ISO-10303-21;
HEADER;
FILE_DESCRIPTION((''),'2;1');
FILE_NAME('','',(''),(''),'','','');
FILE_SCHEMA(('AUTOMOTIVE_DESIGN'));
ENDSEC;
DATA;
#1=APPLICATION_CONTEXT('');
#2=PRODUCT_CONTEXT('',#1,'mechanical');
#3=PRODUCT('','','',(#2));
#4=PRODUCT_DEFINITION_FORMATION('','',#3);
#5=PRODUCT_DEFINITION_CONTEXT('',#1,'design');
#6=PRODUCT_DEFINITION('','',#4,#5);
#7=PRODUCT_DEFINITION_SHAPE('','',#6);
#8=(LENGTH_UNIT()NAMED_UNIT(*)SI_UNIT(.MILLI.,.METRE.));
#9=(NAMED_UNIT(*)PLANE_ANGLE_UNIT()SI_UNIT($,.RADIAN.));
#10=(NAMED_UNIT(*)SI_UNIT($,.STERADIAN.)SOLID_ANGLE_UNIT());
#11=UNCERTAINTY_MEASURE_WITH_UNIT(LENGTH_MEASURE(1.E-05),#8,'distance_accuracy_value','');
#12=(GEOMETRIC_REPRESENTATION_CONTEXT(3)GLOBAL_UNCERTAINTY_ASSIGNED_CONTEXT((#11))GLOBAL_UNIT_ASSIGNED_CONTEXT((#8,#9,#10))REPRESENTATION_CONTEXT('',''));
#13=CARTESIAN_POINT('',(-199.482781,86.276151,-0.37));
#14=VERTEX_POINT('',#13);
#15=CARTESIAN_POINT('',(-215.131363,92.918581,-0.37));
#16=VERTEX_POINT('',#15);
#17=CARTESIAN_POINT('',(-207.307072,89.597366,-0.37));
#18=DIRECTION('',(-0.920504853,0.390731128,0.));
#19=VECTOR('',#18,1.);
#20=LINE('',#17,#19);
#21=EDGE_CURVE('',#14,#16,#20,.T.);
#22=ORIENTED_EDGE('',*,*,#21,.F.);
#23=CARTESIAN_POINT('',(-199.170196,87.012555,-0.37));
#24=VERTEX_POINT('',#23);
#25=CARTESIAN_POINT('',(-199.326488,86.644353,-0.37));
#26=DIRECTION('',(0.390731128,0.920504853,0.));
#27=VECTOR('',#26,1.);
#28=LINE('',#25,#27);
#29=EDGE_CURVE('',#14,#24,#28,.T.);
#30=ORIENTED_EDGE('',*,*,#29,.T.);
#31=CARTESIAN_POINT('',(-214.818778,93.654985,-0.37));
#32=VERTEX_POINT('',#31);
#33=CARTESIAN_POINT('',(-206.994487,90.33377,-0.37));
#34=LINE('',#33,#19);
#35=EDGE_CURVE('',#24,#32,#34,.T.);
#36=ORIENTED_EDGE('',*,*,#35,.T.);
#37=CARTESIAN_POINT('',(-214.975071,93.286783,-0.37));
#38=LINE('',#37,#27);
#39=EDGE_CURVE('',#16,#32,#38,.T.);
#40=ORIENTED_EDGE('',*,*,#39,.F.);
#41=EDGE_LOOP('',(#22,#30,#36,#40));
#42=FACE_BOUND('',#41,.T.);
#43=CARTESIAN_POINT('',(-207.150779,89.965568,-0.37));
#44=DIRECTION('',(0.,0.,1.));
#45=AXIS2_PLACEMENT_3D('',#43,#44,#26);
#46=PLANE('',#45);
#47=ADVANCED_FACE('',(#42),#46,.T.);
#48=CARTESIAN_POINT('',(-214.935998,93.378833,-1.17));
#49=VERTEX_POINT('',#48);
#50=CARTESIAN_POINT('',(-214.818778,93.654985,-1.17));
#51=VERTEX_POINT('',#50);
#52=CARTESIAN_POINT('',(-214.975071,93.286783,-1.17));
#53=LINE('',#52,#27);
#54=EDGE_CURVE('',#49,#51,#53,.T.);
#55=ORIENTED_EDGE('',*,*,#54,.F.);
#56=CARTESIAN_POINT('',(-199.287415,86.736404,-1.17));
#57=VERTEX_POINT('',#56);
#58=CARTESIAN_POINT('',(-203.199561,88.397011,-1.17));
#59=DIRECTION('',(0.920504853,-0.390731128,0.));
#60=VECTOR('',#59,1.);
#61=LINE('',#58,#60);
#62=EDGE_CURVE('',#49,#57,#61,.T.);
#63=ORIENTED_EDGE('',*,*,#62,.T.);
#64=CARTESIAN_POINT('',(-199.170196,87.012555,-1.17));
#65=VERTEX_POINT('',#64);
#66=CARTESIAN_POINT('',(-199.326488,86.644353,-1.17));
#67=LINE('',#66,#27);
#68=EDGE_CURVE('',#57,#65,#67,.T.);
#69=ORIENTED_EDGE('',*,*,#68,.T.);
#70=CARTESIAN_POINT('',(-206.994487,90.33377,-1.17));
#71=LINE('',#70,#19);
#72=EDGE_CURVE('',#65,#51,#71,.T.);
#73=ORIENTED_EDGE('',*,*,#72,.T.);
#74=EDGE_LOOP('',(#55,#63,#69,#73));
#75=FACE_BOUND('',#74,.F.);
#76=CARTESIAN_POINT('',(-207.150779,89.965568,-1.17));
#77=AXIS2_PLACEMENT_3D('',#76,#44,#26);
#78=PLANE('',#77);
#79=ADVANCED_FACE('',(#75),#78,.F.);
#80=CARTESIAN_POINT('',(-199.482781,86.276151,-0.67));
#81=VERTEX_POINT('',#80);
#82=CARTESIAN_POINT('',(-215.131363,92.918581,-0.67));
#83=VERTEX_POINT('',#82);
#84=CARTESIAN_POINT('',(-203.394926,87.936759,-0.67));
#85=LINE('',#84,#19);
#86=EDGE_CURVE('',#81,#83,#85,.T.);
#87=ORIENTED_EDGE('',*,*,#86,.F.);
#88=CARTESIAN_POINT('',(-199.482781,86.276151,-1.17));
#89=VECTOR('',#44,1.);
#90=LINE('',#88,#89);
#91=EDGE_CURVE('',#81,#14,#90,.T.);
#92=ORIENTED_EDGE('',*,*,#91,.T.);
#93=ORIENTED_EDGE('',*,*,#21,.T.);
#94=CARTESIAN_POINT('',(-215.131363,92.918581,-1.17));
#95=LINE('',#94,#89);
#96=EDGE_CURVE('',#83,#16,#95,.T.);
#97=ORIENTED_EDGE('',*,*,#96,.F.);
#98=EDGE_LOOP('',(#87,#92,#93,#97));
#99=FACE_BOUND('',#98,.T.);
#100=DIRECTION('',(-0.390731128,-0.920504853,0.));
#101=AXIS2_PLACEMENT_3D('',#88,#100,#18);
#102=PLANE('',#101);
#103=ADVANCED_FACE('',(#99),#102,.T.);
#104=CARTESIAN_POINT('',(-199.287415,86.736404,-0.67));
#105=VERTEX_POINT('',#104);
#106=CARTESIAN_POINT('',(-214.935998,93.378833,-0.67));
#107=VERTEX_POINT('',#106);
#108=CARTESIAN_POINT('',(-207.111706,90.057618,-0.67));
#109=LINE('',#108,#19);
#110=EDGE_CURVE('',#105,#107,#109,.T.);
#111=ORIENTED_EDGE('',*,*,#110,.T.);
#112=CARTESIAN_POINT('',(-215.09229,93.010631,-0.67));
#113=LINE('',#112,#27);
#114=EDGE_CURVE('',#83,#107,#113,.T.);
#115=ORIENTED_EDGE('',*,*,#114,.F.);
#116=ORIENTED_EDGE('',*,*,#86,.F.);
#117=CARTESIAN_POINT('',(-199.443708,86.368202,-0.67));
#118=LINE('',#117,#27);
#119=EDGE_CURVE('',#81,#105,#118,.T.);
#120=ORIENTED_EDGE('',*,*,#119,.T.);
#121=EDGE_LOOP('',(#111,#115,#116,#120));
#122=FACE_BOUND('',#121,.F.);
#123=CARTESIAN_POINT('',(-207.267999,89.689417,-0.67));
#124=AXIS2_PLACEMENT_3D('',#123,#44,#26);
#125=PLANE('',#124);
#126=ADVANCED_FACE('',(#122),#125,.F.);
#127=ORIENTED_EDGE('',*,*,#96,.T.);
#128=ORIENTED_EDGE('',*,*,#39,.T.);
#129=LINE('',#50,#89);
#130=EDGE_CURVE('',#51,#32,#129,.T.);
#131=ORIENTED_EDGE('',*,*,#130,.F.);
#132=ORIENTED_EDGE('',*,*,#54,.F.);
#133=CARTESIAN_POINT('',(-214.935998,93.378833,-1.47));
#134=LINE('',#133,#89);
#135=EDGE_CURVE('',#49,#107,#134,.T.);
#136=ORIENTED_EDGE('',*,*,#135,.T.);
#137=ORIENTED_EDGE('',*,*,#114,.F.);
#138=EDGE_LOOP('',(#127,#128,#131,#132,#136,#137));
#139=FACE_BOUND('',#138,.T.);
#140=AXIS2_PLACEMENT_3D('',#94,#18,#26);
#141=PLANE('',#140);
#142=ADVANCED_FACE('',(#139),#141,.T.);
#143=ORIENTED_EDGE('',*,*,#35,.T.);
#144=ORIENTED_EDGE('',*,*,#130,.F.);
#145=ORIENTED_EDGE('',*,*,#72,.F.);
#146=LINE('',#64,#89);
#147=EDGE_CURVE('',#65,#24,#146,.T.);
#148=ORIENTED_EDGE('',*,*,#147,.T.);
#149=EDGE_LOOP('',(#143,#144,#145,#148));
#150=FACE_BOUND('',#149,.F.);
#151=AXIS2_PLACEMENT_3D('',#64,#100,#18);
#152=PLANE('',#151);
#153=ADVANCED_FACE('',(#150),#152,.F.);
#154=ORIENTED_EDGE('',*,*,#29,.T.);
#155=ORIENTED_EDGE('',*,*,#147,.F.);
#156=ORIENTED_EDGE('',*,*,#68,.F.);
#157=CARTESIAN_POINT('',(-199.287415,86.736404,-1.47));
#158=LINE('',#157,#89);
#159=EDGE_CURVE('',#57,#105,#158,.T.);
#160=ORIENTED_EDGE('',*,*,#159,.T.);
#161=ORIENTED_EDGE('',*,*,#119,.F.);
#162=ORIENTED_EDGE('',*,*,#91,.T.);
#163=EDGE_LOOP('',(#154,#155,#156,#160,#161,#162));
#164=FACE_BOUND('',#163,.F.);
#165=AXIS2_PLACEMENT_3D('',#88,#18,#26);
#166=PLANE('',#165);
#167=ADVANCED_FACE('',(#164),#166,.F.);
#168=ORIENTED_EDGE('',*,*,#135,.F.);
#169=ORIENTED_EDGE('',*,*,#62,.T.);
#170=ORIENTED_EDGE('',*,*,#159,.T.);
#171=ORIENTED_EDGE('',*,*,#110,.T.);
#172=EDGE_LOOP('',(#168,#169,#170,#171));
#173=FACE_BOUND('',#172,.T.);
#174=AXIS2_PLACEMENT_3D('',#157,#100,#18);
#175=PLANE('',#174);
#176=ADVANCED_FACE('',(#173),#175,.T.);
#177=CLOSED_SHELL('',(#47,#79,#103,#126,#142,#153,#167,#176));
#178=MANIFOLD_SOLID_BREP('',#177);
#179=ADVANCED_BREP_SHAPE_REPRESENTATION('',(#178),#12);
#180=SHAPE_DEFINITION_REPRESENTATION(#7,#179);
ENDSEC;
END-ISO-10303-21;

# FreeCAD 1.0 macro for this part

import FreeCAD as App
import Part
import Sketcher
Q = App.Units.Quantity

doc = App.newDocument("Part")
params = doc.addObject("Spreadsheet::Sheet", "Params")
for row, (alias, value) in enumerate([
    ("sketch1_height", "17 mm"),
    ("sketch1_width", "0.8 mm"),
    ("pad1_length", "0.8 mm"),
    ("sketch2_height", "17 mm"),
    ("sketch2_width", "0.8 mm"),
    ("pad2_length", "0.8 mm"),
], start=1):
    params.set(f"A{row}", alias)
    params.set(f"B{row}", "=" + value)
    params.setAlias(f"B{row}", alias)

body = doc.addObject("PartDesign::Body", "Body")

# Sketch on XY plane
sketch1 = body.newObject("Sketcher::SketchObject", "Sketch")
sketch1.AttachmentSupport = (doc.getObject("XY_Plane"), [""])
sketch1.MapMode = "FlatFace"
sketch1.addGeometry(Part.LineSegment(App.Vector(0, 17, 0), App.Vector(0, 0, 0)), False)
sketch1.addGeometry(Part.LineSegment(App.Vector(0, 0, 0), App.Vector(0.8, 0, 0)), False)
sketch1.addGeometry(Part.LineSegment(App.Vector(0.8, 0, 0), App.Vector(0.8, 17, 0)), False)
sketch1.addGeometry(Part.LineSegment(App.Vector(0.8, 17, 0), App.Vector(0, 17, 0)), False)
sketch1.addConstraint(Sketcher.Constraint("Coincident", 0, 2, 1, 1))
sketch1.addConstraint(Sketcher.Constraint("Coincident", 1, 2, 2, 1))
sketch1.addConstraint(Sketcher.Constraint("Coincident", 2, 2, 3, 1))
sketch1.addConstraint(Sketcher.Constraint("Coincident", 3, 2, 0, 1))
sketch1.addConstraint(Sketcher.Constraint("Vertical", 0))
sketch1.addConstraint(Sketcher.Constraint("Horizontal", 1))
sketch1.addConstraint(Sketcher.Constraint("Vertical", 2))
sketch1.addConstraint(Sketcher.Constraint("Horizontal", 3))
sketch1.addConstraint(Sketcher.Constraint("Coincident", 0, 2, -1, 1))
sketch1.addConstraint(Sketcher.Constraint("DistanceY", 0, 2, 0, 1, Q("17 mm")))
sketch1.addConstraint(Sketcher.Constraint("DistanceX", 1, 1, 1, 2, Q("0.8 mm")))
sketch1.setExpression("Constraints[9]", "Params.sketch1_height")
sketch1.setExpression("Constraints[10]", "Params.sketch1_width")
pad1 = body.newObject("PartDesign::Pad", "Pad")
pad1.Profile = sketch1
pad1.setExpression("Length", "Params.pad1_length")
body2 = doc.addObject("PartDesign::Body", "Body001")

# Sketch on XY plane
sketch2 = body2.newObject("Sketcher::SketchObject", "Sketch001")
sketch2.AttachmentSupport = (doc.getObject("XY_Plane001"), [""])
sketch2.MapMode = "FlatFace"
sketch2.AttachmentOffset = App.Placement(App.Vector(0, 0, 0.3), App.Rotation())
sketch2.addGeometry(Part.LineSegment(App.Vector(0.3, 17, 0), App.Vector(0.3, 0, 0)), False)
sketch2.addGeometry(Part.LineSegment(App.Vector(0.3, 0, 0), App.Vector(1.1, 0, 0)), False)
sketch2.addGeometry(Part.LineSegment(App.Vector(1.1, 0, 0), App.Vector(1.1, 17, 0)), False)
sketch2.addGeometry(Part.LineSegment(App.Vector(1.1, 17, 0), App.Vector(0.3, 17, 0)), False)
sketch2.addConstraint(Sketcher.Constraint("Coincident", 0, 2, 1, 1))
sketch2.addConstraint(Sketcher.Constraint("Coincident", 1, 2, 2, 1))
sketch2.addConstraint(Sketcher.Constraint("Coincident", 2, 2, 3, 1))
sketch2.addConstraint(Sketcher.Constraint("Coincident", 3, 2, 0, 1))
sketch2.addConstraint(Sketcher.Constraint("Vertical", 0))
sketch2.addConstraint(Sketcher.Constraint("Horizontal", 1))
sketch2.addConstraint(Sketcher.Constraint("Vertical", 2))
sketch2.addConstraint(Sketcher.Constraint("Horizontal", 3))
sketch2.addConstraint(Sketcher.Constraint("PointOnObject", 0, 2, -1))
sketch2.addConstraint(Sketcher.Constraint("DistanceY", 0, 2, 0, 1, Q("17 mm")))
sketch2.addConstraint(Sketcher.Constraint("DistanceX", 1, 1, 1, 2, Q("0.8 mm")))
sketch2.addConstraint(Sketcher.Constraint("DistanceX", -1, 1, 0, 2, Q("0.3 mm")))
sketch2.setExpression("Constraints[9]", "Params.sketch2_height")
sketch2.setExpression("Constraints[10]", "Params.sketch2_width")
pad2 = body2.newObject("PartDesign::Pad", "Pad001")
pad2.Profile = sketch2
pad2.setExpression("Length", "Params.pad2_length")
doc.recompute()

boolean = body2.newObject("PartDesign::Boolean", "Boolean")
boolean.Type = "Cut"
boolean.addObjects([body])
body3 = doc.addObject("PartDesign::Body", "Body002")
doc.recompute()

body2.Placement = App.Placement(App.Vector(-199.6, 86, -1.47), App.Rotation(App.Vector(0, 0, 1), 67))
boolean2 = body3.newObject("PartDesign::Boolean", "Boolean001")
boolean2.Type = "Fuse"
boolean2.addObjects([body2])

doc.recompute()
